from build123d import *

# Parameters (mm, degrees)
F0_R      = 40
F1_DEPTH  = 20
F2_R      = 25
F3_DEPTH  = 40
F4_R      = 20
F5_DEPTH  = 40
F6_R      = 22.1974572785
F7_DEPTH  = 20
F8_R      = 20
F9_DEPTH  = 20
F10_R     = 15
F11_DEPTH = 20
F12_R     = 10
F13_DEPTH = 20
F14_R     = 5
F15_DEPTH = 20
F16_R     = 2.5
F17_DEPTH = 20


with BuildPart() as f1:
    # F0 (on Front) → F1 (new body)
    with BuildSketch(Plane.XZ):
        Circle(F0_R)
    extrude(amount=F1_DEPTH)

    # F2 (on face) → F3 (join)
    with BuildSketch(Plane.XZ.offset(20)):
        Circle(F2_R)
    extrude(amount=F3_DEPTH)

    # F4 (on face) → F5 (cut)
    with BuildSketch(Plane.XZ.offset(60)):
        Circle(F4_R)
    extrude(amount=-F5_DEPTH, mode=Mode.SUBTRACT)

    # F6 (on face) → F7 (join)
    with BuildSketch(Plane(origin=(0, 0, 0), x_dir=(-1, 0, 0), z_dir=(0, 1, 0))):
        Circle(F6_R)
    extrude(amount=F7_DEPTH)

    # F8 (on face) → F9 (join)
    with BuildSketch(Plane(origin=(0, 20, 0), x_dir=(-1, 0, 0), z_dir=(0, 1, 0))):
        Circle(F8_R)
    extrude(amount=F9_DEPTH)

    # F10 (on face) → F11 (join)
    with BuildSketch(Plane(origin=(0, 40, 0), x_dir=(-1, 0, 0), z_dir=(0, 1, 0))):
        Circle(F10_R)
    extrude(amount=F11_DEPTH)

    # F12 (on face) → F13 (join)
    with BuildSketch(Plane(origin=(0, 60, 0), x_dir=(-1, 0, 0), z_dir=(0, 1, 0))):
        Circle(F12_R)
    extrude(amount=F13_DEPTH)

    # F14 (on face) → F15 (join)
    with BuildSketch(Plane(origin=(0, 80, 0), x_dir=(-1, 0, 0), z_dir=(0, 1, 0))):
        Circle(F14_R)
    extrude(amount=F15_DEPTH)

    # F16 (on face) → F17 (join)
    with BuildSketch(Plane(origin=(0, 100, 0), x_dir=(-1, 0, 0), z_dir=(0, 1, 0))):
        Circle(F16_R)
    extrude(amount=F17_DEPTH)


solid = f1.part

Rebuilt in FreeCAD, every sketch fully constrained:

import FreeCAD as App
import Part
import Sketcher
from FreeCAD import Vector
Q = App.Units.Quantity

doc = App.newDocument("Part")
params = doc.addObject("Spreadsheet::Sheet", "Params")
for row, (alias, value) in enumerate([
    ("sketch1_diameter", "80 mm"),
    ("pad1_length", "20 mm"),
    ("sketch2_diameter", "50 mm"),
    ("pad2_length", "40 mm"),
    ("sketch3_diameter", "40 mm"),
    ("pocket1_length", "40 mm"),
    ("pad3_length", "20 mm"),
    ("sketch5_diameter", "40 mm"),
    ("pad4_length", "20 mm"),
    ("sketch6_diameter", "30 mm"),
    ("pad5_length", "20 mm"),
    ("sketch7_diameter", "20 mm"),
    ("pad6_length", "20 mm"),
    ("sketch8_diameter", "10 mm"),
    ("pad7_length", "20 mm"),
    ("sketch9_diameter", "5 mm"),
    ("pad8_length", "20 mm"),
], start=1):
    params.set(f"A{row}", alias)
    params.set(f"B{row}", "=" + value)
    params.setAlias(f"B{row}", alias)

body = doc.addObject("PartDesign::Body", "Body")

sketch1 = body.newObject("Sketcher::SketchObject", "Sketch")
sketch1.AttachmentSupport = (doc.getObject("XZ_Plane"), [""])
sketch1.MapMode = "FlatFace"
sketch1.addGeometry(Part.Circle(Vector(0, 0, 0), Vector(0, 0, 1), 40), False)
sketch1.addConstraint([
    Sketcher.Constraint("Coincident", 0, 3, -1, 1),
    Sketcher.Constraint("Diameter", 0, Q("80 mm")),
])
sketch1.setExpression("Constraints[1]", "Params.sketch1_diameter")
pad1 = body.newObject("PartDesign::Pad", "Pad")
pad1.Profile = sketch1
pad1.setExpression("Length", "Params.pad1_length")

sketch2 = body.newObject("Sketcher::SketchObject", "Sketch001")
sketch2.AttachmentSupport = (doc.getObject("XZ_Plane"), [""])
sketch2.MapMode = "FlatFace"
sketch2.AttachmentOffset = App.Placement(Vector(0, 0, 20), App.Rotation())
sketch2.addGeometry(Part.Circle(Vector(0, 0, 0), Vector(0, 0, 1), 25), False)
sketch2.addConstraint([
    Sketcher.Constraint("Coincident", 0, 3, -1, 1),
    Sketcher.Constraint("Diameter", 0, Q("50 mm")),
])
sketch2.setExpression("Constraints[1]", "Params.sketch2_diameter")
pad2 = body.newObject("PartDesign::Pad", "Pad001")
pad2.Profile = sketch2
pad2.setExpression("Length", "Params.pad2_length")

sketch3 = body.newObject("Sketcher::SketchObject", "Sketch002")
sketch3.AttachmentSupport = (doc.getObject("XZ_Plane"), [""])
sketch3.MapMode = "FlatFace"
sketch3.AttachmentOffset = App.Placement(Vector(0, 0, 60), App.Rotation())
sketch3.addGeometry(Part.Circle(Vector(0, 0, 0), Vector(0, 0, 1), 20), False)
sketch3.addConstraint([
    Sketcher.Constraint("Coincident", 0, 3, -1, 1),
    Sketcher.Constraint("Diameter", 0, Q("40 mm")),
])
sketch3.setExpression("Constraints[1]", "Params.sketch3_diameter")
pocket1 = body.newObject("PartDesign::Pocket", "Pocket")
pocket1.Profile = sketch3
pocket1.setExpression("Length", "Params.pocket1_length")

sketch4 = body.newObject("Sketcher::SketchObject", "Sketch003")
sketch4.AttachmentSupport = (doc.getObject("XZ_Plane"), [""])
sketch4.MapMode = "FlatFace"
sketch4.addGeometry(Part.Circle(Vector(0, 0, 0), Vector(0, 0, 1), 22), False)
sketch4.addConstraint([
    Sketcher.Constraint("Coincident", 0, 3, -1, 1),
    Sketcher.Constraint("Diameter", 0, Q("44.394915 mm")),
])
pad3 = body.newObject("PartDesign::Pad", "Pad002")
pad3.Profile = sketch4
pad3.setExpression("Length", "Params.pad3_length")
pad3.Reversed = True

sketch5 = body.newObject("Sketcher::SketchObject", "Sketch004")
sketch5.AttachmentSupport = (doc.getObject("XZ_Plane"), [""])
sketch5.MapMode = "FlatFace"
sketch5.AttachmentOffset = App.Placement(Vector(0, 0, -20), App.Rotation())
sketch5.addGeometry(Part.Circle(Vector(0, 0, 0), Vector(0, 0, 1), 20), False)
sketch5.addConstraint([
    Sketcher.Constraint("Coincident", 0, 3, -1, 1),
    Sketcher.Constraint("Diameter", 0, Q("40 mm")),
])
sketch5.setExpression("Constraints[1]", "Params.sketch5_diameter")
pad4 = body.newObject("PartDesign::Pad", "Pad003")
pad4.Profile = sketch5
pad4.setExpression("Length", "Params.pad4_length")
pad4.Reversed = True

sketch6 = body.newObject("Sketcher::SketchObject", "Sketch005")
sketch6.AttachmentSupport = (doc.getObject("XZ_Plane"), [""])
sketch6.MapMode = "FlatFace"
sketch6.AttachmentOffset = App.Placement(Vector(0, 0, -40), App.Rotation())
sketch6.addGeometry(Part.Circle(Vector(0, 0, 0), Vector(0, 0, 1), 15), False)
sketch6.addConstraint([
    Sketcher.Constraint("Coincident", 0, 3, -1, 1),
    Sketcher.Constraint("Diameter", 0, Q("30 mm")),
])
sketch6.setExpression("Constraints[1]", "Params.sketch6_diameter")
pad5 = body.newObject("PartDesign::Pad", "Pad004")
pad5.Profile = sketch6
pad5.setExpression("Length", "Params.pad5_length")
pad5.Reversed = True

sketch7 = body.newObject("Sketcher::SketchObject", "Sketch006")
sketch7.AttachmentSupport = (doc.getObject("XZ_Plane"), [""])
sketch7.MapMode = "FlatFace"
sketch7.AttachmentOffset = App.Placement(Vector(0, 0, -60), App.Rotation())
sketch7.addGeometry(Part.Circle(Vector(0, 0, 0), Vector(0, 0, 1), 10), False)
sketch7.addConstraint([
    Sketcher.Constraint("Coincident", 0, 3, -1, 1),
    Sketcher.Constraint("Diameter", 0, Q("20 mm")),
])
sketch7.setExpression("Constraints[1]", "Params.sketch7_diameter")
pad6 = body.newObject("PartDesign::Pad", "Pad005")
pad6.Profile = sketch7
pad6.setExpression("Length", "Params.pad6_length")
pad6.Reversed = True

sketch8 = body.newObject("Sketcher::SketchObject", "Sketch007")
sketch8.AttachmentSupport = (doc.getObject("XZ_Plane"), [""])
sketch8.MapMode = "FlatFace"
sketch8.AttachmentOffset = App.Placement(Vector(0, 0, -80), App.Rotation())
sketch8.addGeometry(Part.Circle(Vector(0, 0, 0), Vector(0, 0, 1), 5), False)
sketch8.addConstraint([
    Sketcher.Constraint("Coincident", 0, 3, -1, 1),
    Sketcher.Constraint("Diameter", 0, Q("10 mm")),
])
sketch8.setExpression("Constraints[1]", "Params.sketch8_diameter")
pad7 = body.newObject("PartDesign::Pad", "Pad006")
pad7.Profile = sketch8
pad7.setExpression("Length", "Params.pad7_length")
pad7.Reversed = True

sketch9 = body.newObject("Sketcher::SketchObject", "Sketch008")
sketch9.AttachmentSupport = (doc.getObject("XZ_Plane"), [""])
sketch9.MapMode = "FlatFace"
sketch9.AttachmentOffset = App.Placement(Vector(0, 0, -100), App.Rotation())
sketch9.addGeometry(Part.Circle(Vector(0, 0, 0), Vector(0, 0, 1), 2.5), False)
sketch9.addConstraint([
    Sketcher.Constraint("Coincident", 0, 3, -1, 1),
    Sketcher.Constraint("Diameter", 0, Q("5 mm")),
])
sketch9.setExpression("Constraints[1]", "Params.sketch9_diameter")
pad8 = body.newObject("PartDesign::Pad", "Pad007")
pad8.Profile = sketch9
pad8.setExpression("Length", "Params.pad8_length")
pad8.Reversed = True

doc.recompute()
